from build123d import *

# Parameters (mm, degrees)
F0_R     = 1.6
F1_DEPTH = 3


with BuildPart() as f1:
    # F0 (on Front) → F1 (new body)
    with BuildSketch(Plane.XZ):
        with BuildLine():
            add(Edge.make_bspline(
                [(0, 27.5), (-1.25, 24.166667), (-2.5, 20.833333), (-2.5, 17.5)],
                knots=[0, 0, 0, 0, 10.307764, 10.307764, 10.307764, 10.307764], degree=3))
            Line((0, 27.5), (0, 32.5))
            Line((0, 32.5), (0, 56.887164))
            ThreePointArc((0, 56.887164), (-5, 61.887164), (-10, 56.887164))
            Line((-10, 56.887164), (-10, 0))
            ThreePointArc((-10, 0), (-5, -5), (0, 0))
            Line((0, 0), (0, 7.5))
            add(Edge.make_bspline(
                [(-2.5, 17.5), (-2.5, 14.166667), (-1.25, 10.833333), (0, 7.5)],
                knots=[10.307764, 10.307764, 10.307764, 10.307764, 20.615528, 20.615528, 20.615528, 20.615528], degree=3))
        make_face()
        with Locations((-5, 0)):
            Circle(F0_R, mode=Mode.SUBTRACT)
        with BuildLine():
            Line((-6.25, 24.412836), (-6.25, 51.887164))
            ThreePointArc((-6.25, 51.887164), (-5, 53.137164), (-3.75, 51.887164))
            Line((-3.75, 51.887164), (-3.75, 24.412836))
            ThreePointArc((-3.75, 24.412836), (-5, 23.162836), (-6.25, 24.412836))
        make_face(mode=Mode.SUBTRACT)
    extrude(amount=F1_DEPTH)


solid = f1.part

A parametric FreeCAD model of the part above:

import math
import FreeCAD as App
import Part
import Sketcher
Q = App.Units.Quantity

doc = App.newDocument("Part")
body = doc.addObject("PartDesign::Body", "Body")

# Sketch on XZ plane
sketch1 = body.newObject("Sketcher::SketchObject", "Sketch")
sketch1.AttachmentSupport = (doc.getObject("XZ_Plane"), [""])
sketch1.MapMode = "FlatFace"
sketch1.addGeometry([
    Part.BSplineCurve([App.Vector(0, 27.5, 0), App.Vector(-1.25, 24.166667, 0), App.Vector(-2.5, 20.833333, 0), App.Vector(-2.5, 14.166667, 0), App.Vector(-1.25, 10.833333, 0), App.Vector(0, 7.5, 0)], [4, 2, 4], [0, 10.307764, 20.615528], False, 3, [1, 1, 1, 1, 1, 1], False),  # 0
    Part.LineSegment(App.Vector(0, 27.5, 0), App.Vector(0, 56.887164, 0)),  # 1
    Part.ArcOfCircle(Part.Circle(App.Vector(-5, 56.887164, 0), App.Vector(0, 0, 1), 5), math.radians(0), math.radians(180)),  # 2
    Part.LineSegment(App.Vector(-10, 56.887164, 0), App.Vector(-10, 0, 0)),  # 3
    Part.ArcOfCircle(Part.Circle(App.Vector(-5, 0, 0), App.Vector(0, 0, 1), 5), math.radians(180), math.radians(360)),  # 4
    Part.LineSegment(App.Vector(0, 0, 0), App.Vector(0, 7.5, 0)),  # 5
    Part.Circle(App.Vector(-5, 0, 0), App.Vector(0, 0, 1), 1.6),  # 6
    Part.LineSegment(App.Vector(-6.25, 24.412836, 0), App.Vector(-6.25, 51.887164, 0)),  # 7
    Part.ArcOfCircle(Part.Circle(App.Vector(-5, 51.887164, 0), App.Vector(0, 0, 1), 1.25), math.radians(0), math.radians(180)),  # 8
    Part.LineSegment(App.Vector(-3.75, 51.887164, 0), App.Vector(-3.75, 24.412836, 0)),  # 9
    Part.ArcOfCircle(Part.Circle(App.Vector(-5, 24.412836, 0), App.Vector(0, 0, 1), 1.25), math.radians(180), math.radians(360)),  # 10
], False)
sketch1.addConstraint([
    Sketcher.Constraint("Block", 0),
    Sketcher.Constraint("Coincident", 0, 1, 1, 1),
    Sketcher.Constraint("Tangent", 1, 2, 2, 1),
    Sketcher.Constraint("Tangent", 2, 2, 3, 1),
    Sketcher.Constraint("Tangent", 3, 2, 4, 1),
    Sketcher.Constraint("Tangent", 4, 2, 5, 1),
    Sketcher.Constraint("Coincident", 5, 2, 0, 2),
    Sketcher.Constraint("Tangent", 7, 2, 8, 2),
    Sketcher.Constraint("Tangent", 8, 1, 9, 1),
    Sketcher.Constraint("Tangent", 9, 2, 10, 2),
    Sketcher.Constraint("Tangent", 10, 1, 7, 1),
    Sketcher.Constraint("Vertical", 1),
    Sketcher.Constraint("Vertical", 3),
    Sketcher.Constraint("Vertical", 5),
    Sketcher.Constraint("Vertical", 7),
    Sketcher.Constraint("Vertical", 9),
    Sketcher.Constraint("Coincident", 6, 3, 4, 3),
    Sketcher.Constraint("PointOnObject", 4, 3, -1),
    Sketcher.Constraint("Vertical", 6, 3, 8, 3),
    Sketcher.Constraint("Radius", 2, Q("5 mm")),
    Sketcher.Constraint("Diameter", 6, Q("3.2 mm")),
    Sketcher.Constraint("Radius", 8, Q("1.25 mm")),
    Sketcher.Constraint("DistanceY", 8, 3, 2, 3, Q("5 mm")),
    Sketcher.Constraint("DistanceY", 7, 1, 7, 2, Q("27.474328 mm")),
    Sketcher.Constraint("DistanceY", 1, 1, 1, 2, Q("29.387164 mm")),
])
pad1 = body.newObject("PartDesign::Pad", "Pad")
pad1.Profile = sketch1
pad1.Length = 3

doc.recompute()
